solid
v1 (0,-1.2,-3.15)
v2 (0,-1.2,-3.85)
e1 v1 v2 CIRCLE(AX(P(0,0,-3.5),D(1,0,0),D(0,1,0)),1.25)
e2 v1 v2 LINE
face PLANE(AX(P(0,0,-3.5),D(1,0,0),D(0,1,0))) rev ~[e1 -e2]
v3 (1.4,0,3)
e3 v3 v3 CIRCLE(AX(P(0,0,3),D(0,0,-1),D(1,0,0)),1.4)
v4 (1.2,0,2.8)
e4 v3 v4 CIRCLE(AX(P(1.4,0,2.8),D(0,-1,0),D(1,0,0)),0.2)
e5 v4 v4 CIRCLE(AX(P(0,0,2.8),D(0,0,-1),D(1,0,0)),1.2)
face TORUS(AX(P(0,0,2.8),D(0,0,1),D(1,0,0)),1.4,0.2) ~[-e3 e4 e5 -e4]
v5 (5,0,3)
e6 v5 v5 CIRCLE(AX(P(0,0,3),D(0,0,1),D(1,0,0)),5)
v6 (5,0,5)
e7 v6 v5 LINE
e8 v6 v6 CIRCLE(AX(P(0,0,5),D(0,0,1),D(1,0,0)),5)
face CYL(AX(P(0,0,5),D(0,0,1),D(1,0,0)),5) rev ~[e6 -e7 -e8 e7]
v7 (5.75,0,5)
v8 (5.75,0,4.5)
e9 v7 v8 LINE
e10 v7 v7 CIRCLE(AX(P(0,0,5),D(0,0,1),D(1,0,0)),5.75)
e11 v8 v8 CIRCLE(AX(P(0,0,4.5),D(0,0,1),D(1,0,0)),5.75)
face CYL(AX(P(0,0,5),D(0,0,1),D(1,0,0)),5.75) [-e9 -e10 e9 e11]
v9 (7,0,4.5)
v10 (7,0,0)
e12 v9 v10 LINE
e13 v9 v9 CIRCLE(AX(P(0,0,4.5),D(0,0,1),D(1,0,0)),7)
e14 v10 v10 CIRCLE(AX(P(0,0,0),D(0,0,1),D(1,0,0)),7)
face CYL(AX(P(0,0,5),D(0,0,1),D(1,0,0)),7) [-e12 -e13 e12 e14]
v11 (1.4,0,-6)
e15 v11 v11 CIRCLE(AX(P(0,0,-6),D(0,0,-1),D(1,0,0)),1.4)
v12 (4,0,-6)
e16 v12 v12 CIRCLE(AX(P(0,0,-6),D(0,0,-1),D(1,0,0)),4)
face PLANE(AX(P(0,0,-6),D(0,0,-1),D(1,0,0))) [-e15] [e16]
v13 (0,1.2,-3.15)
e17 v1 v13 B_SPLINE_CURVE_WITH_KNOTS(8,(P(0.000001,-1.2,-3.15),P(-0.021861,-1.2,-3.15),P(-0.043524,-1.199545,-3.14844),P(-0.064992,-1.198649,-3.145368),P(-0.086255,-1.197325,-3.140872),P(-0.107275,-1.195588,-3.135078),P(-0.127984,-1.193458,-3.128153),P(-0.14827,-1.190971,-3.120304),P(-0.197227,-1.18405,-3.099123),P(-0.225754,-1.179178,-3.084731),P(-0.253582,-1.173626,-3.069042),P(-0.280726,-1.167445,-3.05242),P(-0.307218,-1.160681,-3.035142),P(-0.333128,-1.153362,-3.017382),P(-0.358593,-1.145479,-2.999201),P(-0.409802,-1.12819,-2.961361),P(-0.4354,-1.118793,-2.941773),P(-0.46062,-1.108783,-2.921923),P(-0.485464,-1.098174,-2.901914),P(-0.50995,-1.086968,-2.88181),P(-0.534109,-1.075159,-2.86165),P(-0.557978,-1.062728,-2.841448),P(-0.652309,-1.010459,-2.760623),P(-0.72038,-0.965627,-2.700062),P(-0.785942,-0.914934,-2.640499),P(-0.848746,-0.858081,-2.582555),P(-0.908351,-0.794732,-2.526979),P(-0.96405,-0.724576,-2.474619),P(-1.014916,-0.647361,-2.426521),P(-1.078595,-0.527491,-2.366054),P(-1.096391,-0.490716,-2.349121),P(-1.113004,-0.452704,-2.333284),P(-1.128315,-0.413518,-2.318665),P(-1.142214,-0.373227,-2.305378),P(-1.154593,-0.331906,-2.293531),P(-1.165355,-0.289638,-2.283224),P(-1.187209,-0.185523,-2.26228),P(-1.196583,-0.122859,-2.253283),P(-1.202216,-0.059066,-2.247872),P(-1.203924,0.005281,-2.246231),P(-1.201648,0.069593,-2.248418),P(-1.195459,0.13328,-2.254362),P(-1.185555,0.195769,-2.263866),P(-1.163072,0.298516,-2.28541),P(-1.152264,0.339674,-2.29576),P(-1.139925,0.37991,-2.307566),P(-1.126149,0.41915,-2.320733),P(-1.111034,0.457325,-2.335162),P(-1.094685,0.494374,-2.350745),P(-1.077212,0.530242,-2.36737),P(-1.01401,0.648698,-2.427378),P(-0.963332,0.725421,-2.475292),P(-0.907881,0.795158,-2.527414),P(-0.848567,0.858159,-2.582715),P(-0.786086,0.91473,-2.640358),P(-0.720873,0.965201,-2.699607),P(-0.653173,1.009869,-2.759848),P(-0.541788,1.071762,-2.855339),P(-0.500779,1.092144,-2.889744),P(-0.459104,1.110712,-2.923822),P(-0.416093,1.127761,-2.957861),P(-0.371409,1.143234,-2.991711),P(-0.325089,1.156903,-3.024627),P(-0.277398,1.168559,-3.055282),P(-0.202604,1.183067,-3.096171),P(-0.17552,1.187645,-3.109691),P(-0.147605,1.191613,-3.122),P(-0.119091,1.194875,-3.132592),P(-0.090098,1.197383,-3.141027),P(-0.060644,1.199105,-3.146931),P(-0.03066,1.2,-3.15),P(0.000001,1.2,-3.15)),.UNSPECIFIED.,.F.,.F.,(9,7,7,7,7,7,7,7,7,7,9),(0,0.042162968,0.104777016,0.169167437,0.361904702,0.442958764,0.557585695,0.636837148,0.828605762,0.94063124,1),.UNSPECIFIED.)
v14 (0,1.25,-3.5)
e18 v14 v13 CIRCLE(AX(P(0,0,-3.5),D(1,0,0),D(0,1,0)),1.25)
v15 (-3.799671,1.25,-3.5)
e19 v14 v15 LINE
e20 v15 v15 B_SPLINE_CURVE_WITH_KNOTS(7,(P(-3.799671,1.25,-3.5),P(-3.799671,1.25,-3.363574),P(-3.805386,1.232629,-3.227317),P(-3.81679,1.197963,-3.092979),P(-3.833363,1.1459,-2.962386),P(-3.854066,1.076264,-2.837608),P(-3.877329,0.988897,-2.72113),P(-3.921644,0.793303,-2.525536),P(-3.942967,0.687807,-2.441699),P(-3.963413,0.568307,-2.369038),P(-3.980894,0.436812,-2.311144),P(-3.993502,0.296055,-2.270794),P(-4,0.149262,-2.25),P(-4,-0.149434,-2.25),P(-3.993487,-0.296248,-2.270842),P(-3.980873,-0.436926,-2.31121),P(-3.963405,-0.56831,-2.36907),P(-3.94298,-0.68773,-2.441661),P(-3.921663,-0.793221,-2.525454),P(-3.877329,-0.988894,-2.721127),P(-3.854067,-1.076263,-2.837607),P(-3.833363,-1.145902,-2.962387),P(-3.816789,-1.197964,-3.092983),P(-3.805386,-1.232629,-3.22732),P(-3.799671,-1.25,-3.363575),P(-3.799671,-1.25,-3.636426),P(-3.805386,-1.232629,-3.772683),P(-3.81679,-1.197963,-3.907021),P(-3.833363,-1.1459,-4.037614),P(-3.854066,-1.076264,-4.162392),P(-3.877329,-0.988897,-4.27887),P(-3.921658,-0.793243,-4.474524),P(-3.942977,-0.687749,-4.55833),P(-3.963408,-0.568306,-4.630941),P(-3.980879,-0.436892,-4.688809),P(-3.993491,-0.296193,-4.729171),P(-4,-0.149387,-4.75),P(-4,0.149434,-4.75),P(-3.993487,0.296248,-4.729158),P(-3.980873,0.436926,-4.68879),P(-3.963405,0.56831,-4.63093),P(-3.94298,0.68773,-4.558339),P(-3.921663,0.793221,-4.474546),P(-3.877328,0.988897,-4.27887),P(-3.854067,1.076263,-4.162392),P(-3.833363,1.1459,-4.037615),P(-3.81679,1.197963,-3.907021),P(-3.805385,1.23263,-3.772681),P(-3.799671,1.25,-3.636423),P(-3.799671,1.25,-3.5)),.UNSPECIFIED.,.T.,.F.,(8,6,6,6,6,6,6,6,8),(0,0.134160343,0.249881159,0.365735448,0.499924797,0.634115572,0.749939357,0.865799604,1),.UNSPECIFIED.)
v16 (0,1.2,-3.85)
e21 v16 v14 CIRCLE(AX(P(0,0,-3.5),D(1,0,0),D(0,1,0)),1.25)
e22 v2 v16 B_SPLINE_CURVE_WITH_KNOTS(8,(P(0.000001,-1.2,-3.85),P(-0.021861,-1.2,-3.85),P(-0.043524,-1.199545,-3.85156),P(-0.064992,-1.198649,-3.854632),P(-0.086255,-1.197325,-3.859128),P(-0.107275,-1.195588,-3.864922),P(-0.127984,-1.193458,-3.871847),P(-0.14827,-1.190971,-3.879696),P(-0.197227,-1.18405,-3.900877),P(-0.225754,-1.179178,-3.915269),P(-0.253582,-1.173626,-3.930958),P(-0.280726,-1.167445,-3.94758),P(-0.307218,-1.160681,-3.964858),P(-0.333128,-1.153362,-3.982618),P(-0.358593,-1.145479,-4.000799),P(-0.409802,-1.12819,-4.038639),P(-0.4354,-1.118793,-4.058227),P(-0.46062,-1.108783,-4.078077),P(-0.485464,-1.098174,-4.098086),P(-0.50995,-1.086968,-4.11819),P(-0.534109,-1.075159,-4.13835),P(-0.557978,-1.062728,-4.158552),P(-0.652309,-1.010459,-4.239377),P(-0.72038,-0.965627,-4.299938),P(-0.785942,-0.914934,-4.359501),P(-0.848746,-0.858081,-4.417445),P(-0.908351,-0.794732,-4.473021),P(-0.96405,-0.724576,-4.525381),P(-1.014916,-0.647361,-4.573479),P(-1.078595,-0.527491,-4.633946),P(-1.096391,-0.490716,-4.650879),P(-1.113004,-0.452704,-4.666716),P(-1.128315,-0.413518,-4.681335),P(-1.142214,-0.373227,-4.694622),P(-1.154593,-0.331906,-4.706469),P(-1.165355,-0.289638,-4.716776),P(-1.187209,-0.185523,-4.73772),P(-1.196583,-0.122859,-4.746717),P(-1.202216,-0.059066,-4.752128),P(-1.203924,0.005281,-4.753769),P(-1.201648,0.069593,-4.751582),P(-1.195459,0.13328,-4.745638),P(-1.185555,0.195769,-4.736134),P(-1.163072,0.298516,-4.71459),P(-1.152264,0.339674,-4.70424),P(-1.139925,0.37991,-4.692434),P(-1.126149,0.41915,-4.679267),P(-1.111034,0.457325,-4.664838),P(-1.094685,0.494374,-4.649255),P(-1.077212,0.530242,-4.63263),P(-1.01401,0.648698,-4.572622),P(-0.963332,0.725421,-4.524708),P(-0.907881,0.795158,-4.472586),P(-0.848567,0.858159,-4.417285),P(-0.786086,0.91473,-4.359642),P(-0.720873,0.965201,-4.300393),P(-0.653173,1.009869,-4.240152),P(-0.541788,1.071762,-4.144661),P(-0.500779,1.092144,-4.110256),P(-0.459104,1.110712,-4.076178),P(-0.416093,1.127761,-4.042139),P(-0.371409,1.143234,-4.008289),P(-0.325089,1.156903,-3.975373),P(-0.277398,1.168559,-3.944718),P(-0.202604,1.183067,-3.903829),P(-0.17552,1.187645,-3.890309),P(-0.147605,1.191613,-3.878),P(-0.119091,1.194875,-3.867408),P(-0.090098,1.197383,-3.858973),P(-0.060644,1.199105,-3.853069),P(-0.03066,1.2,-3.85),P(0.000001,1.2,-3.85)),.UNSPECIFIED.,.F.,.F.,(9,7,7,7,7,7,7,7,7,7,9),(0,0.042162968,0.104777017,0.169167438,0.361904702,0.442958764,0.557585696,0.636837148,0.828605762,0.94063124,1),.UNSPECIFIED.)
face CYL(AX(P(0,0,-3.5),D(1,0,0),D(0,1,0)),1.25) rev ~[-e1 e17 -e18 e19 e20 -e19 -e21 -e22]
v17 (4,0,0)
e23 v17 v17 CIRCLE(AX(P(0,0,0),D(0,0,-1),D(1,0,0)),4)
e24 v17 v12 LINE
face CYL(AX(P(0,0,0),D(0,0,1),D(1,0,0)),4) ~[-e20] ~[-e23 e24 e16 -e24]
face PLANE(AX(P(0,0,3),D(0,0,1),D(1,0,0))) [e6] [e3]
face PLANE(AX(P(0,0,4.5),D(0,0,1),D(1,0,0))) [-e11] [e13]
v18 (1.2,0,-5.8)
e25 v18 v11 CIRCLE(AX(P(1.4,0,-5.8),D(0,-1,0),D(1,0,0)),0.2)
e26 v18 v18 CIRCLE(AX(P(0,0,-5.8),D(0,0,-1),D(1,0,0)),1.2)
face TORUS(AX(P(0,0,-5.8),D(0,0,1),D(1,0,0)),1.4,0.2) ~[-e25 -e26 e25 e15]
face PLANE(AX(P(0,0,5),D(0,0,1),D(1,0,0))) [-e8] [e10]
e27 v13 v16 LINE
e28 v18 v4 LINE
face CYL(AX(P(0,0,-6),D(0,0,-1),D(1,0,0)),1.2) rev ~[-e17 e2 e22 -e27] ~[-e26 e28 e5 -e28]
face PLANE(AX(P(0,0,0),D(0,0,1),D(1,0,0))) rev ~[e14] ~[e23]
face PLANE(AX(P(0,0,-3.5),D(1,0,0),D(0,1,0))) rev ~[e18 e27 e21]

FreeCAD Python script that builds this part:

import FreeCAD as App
import Part
import Sketcher

V = App.Vector
Q = App.Units.Quantity


def edges_at(feature, points):
    """Names of the edges that pass closest to the given points."""
    edges = feature.Shape.Edges
    near = lambda p: min(range(len(edges)), key=lambda i: edges[i].distToShape(Part.Vertex(*p))[0])
    return sorted({f"Edge{near(p) + 1}" for p in points})

doc = App.newDocument("Part")
params = doc.addObject("Spreadsheet::Sheet", "Params")
for row, (alias, value) in enumerate([
    ("sketch1_diameter", "16 mm"),
    ("pad1_length", "5 mm"),
    ("sketch2_diameter", "8 mm"),
    ("pad2_length", "6 mm"),
    ("sketch3_diameter", "2.4 mm"),
    ("pocket1_length", "9 mm"),
    ("sketch4_diameter", "10 mm"),
    ("pocket2_length", "2 mm"),
    ("sketch5_diameter", "15 mm"),
    ("sketch5_diameter2", "13.5 mm"),
    ("pocket3_length", "0.5 mm"),
    ("chamfer_size", "0.2 mm"),
    ("fillet_radius", "0.2 mm"),
    ("sketch6_diameter", "2.5 mm"),
    ("pocket4_length", "4.5 mm"),
    ("sketch7_diameter", "16 mm"),
    ("sketch7_diameter2", "14 mm"),
    ("pocket5_length", "10 mm"),
    ("sketch8_diameter", "14 mm"),
    ("sketch8_diameter2", "11.5 mm"),
    ("pocket6_length", "0.5 mm"),
], start=1):
    params.set(f"A{row}", alias)
    params.set(f"B{row}", "=" + value)
    params.setAlias(f"B{row}", alias)

body = doc.addObject("PartDesign::Body", "Body")

# Sketch on XY plane
sketch1 = body.newObject("Sketcher::SketchObject", "Sketch")
sketch1.AttachmentSupport = (doc.getObject("XY_Plane"), [""])
sketch1.MapMode = "FlatFace"
sketch1.addGeometry(Part.Circle(V(0, 0, 0), V(0, 0, 1), 8), False)
sketch1.addConstraint(Sketcher.Constraint("Coincident", 0, 3, -1, 1))
sketch1.addConstraint(Sketcher.Constraint("Diameter", 0, Q("16 mm")))
sketch1.setExpression("Constraints[1]", "Params.sketch1_diameter")
pad1 = body.newObject("PartDesign::Pad", "Pad")
pad1.Profile = sketch1
pad1.setExpression("Length", "Params.pad1_length")

# Sketch on XY plane
sketch2 = body.newObject("Sketcher::SketchObject", "Sketch001")
sketch2.AttachmentSupport = (doc.getObject("XY_Plane"), [""])
sketch2.MapMode = "FlatFace"
sketch2.addGeometry(Part.Circle(V(0, 0, 0), V(0, 0, 1), 4), False)
sketch2.addConstraint(Sketcher.Constraint("Coincident", 0, 3, -1, 1))
sketch2.addConstraint(Sketcher.Constraint("Diameter", 0, Q("8 mm")))
sketch2.setExpression("Constraints[1]", "Params.sketch2_diameter")
pad2 = body.newObject("PartDesign::Pad", "Pad001")
pad2.Profile = sketch2
pad2.setExpression("Length", "Params.pad2_length")
pad2.Reversed = True

# Sketch on XY plane
sketch3 = body.newObject("Sketcher::SketchObject", "Sketch002")
sketch3.AttachmentSupport = (doc.getObject("XY_Plane"), [""])
sketch3.MapMode = "FlatFace"
sketch3.AttachmentOffset = App.Placement(V(0, 0, -6), App.Rotation())
sketch3.addGeometry(Part.Circle(V(0, 0, 0), V(0, 0, 1), 1.2), False)
sketch3.addConstraint(Sketcher.Constraint("Coincident", 0, 3, -1, 1))
sketch3.addConstraint(Sketcher.Constraint("Diameter", 0, Q("2.4 mm")))
sketch3.setExpression("Constraints[1]", "Params.sketch3_diameter")
pocket1 = body.newObject("PartDesign::Pocket", "Pocket")
pocket1.Profile = sketch3
pocket1.setExpression("Length", "Params.pocket1_length")
pocket1.Reversed = True

# Sketch on XY plane
sketch4 = body.newObject("Sketcher::SketchObject", "Sketch003")
sketch4.AttachmentSupport = (doc.getObject("XY_Plane"), [""])
sketch4.MapMode = "FlatFace"
sketch4.AttachmentOffset = App.Placement(V(0, 0, 5), App.Rotation())
sketch4.addGeometry(Part.Circle(V(0, 0, 0), V(0, 0, 1), 5), False)
sketch4.addConstraint(Sketcher.Constraint("Coincident", 0, 3, -1, 1))
sketch4.addConstraint(Sketcher.Constraint("Diameter", 0, Q("10 mm")))
sketch4.setExpression("Constraints[1]", "Params.sketch4_diameter")
pocket2 = body.newObject("PartDesign::Pocket", "Pocket001")
pocket2.Profile = sketch4
pocket2.setExpression("Length", "Params.pocket2_length")

# Sketch on XY plane
sketch5 = body.newObject("Sketcher::SketchObject", "Sketch004")
sketch5.AttachmentSupport = (doc.getObject("XY_Plane"), [""])
sketch5.MapMode = "FlatFace"
sketch5.AttachmentOffset = App.Placement(V(0, 0, 5), App.Rotation())
sketch5.addGeometry(Part.Circle(V(0, 0, 0), V(0, 0, 1), 7.5), False)
sketch5.addGeometry(Part.Circle(V(0, 0, 0), V(0, 0, 1), 6.75), False)
sketch5.addConstraint(Sketcher.Constraint("Coincident", 0, 3, -1, 1))
sketch5.addConstraint(Sketcher.Constraint("Coincident", 1, 3, -1, 1))
sketch5.addConstraint(Sketcher.Constraint("Diameter", 0, Q("15 mm")))
sketch5.addConstraint(Sketcher.Constraint("Diameter", 1, Q("13.5 mm")))
sketch5.setExpression("Constraints[2]", "Params.sketch5_diameter")
sketch5.setExpression("Constraints[3]", "Params.sketch5_diameter2")
pocket3 = body.newObject("PartDesign::Pocket", "Pocket002")
pocket3.Profile = sketch5
pocket3.setExpression("Length", "Params.pocket3_length")
doc.recompute()

chamfer = body.newObject("PartDesign::Chamfer", "Chamfer")
chamfer.Base = (pocket3, edges_at(pocket3, [(-6.75, 0, 5)]))
chamfer.setExpression("Size", "Params.chamfer_size")
doc.recompute()

fillet = body.newObject("PartDesign::Fillet", "Fillet")
fillet.Base = (chamfer, edges_at(chamfer, [(-6.75, 0, 4.8), (-1.2, 0, 3), (-1.2, 0, -6)]))
fillet.setExpression("Radius", "Params.fillet_radius")

# Sketch on YZ plane
sketch6 = body.newObject("Sketcher::SketchObject", "Sketch005")
sketch6.AttachmentSupport = (doc.getObject("YZ_Plane"), [""])
sketch6.MapMode = "FlatFace"
sketch6.addGeometry(Part.Circle(V(0, -3.5, 0), V(0, 0, 1), 1.25), False)
sketch6.addConstraint(Sketcher.Constraint("PointOnObject", 0, 3, -2))
sketch6.addConstraint(Sketcher.Constraint("Diameter", 0, Q("2.5 mm")))
sketch6.addConstraint(Sketcher.Constraint("DistanceY", 0, 3, -1, 1, Q("3.5 mm")))
sketch6.setExpression("Constraints[1]", "Params.sketch6_diameter")
pocket4 = body.newObject("PartDesign::Pocket", "Pocket003")
pocket4.Profile = sketch6
pocket4.setExpression("Length", "Params.pocket4_length")

# Sketch on XY plane
sketch7 = body.newObject("Sketcher::SketchObject", "Sketch006")
sketch7.AttachmentSupport = (doc.getObject("XY_Plane"), [""])
sketch7.MapMode = "FlatFace"
sketch7.AttachmentOffset = App.Placement(V(0, 0, 5), App.Rotation())
sketch7.addGeometry(Part.Circle(V(0, 0, 0), V(0, 0, 1), 8), False)
sketch7.addGeometry(Part.Circle(V(0, 0, 0), V(0, 0, 1), 7), False)
sketch7.addConstraint(Sketcher.Constraint("Coincident", 0, 3, -1, 1))
sketch7.addConstraint(Sketcher.Constraint("Coincident", 1, 3, -1, 1))
sketch7.addConstraint(Sketcher.Constraint("Diameter", 0, Q("16 mm")))
sketch7.addConstraint(Sketcher.Constraint("Diameter", 1, Q("14 mm")))
sketch7.setExpression("Constraints[2]", "Params.sketch7_diameter")
sketch7.setExpression("Constraints[3]", "Params.sketch7_diameter2")
pocket5 = body.newObject("PartDesign::Pocket", "Pocket004")
pocket5.Profile = sketch7
pocket5.setExpression("Length", "Params.pocket5_length")

# Sketch on XY plane
sketch8 = body.newObject("Sketcher::SketchObject", "Sketch007")
sketch8.AttachmentSupport = (doc.getObject("XY_Plane"), [""])
sketch8.MapMode = "FlatFace"
sketch8.AttachmentOffset = App.Placement(V(0, 0, 5), App.Rotation())
sketch8.addGeometry(Part.Circle(V(0, 0, 0), V(0, 0, 1), 7), False)
sketch8.addGeometry(Part.Circle(V(0, 0, 0), V(0, 0, 1), 5.75), False)
sketch8.addConstraint(Sketcher.Constraint("Coincident", 0, 3, -1, 1))
sketch8.addConstraint(Sketcher.Constraint("Coincident", 1, 3, -1, 1))
sketch8.addConstraint(Sketcher.Constraint("Diameter", 0, Q("14 mm")))
sketch8.addConstraint(Sketcher.Constraint("Diameter", 1, Q("11.5 mm")))
sketch8.setExpression("Constraints[2]", "Params.sketch8_diameter")
sketch8.setExpression("Constraints[3]", "Params.sketch8_diameter2")
pocket6 = body.newObject("PartDesign::Pocket", "Pocket005")
pocket6.Profile = sketch8
pocket6.setExpression("Length", "Params.pocket6_length")

doc.recompute()
